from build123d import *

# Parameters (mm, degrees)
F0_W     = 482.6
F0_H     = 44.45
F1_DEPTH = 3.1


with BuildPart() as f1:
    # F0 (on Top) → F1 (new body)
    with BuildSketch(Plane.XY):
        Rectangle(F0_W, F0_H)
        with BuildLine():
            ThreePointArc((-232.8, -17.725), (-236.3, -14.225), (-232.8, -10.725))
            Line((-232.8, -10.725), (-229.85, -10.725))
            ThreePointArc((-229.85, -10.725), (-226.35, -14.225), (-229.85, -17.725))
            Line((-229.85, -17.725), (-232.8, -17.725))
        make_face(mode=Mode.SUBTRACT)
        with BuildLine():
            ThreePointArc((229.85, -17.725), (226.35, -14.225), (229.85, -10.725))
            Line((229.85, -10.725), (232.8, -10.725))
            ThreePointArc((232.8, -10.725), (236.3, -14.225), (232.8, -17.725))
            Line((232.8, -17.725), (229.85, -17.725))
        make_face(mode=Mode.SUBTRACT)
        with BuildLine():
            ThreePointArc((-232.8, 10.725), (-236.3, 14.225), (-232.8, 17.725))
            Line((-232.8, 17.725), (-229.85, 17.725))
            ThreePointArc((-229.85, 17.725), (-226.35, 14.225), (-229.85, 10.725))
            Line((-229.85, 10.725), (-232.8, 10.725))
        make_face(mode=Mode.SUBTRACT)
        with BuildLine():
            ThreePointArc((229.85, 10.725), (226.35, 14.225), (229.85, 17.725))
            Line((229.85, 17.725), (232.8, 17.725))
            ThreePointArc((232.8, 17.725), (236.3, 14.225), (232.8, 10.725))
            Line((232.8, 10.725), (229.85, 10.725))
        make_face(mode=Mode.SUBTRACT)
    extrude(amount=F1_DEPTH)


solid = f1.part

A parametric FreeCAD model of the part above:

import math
import FreeCAD as App
import Part
import Sketcher

V = App.Vector
Q = App.Units.Quantity


def add_polygon(sketch, points):
    """Adds a closed chain of lines whose ends are joined by coincident constraints."""
    first, n = sketch.GeometryCount, len(points)
    for a, b in zip(points, points[1:] + points[:1]):
        sketch.addGeometry(Part.LineSegment(App.Vector(*a, 0), App.Vector(*b, 0)), False)
    for i in range(n):
        sketch.addConstraint(Sketcher.Constraint("Coincident", first + i, 2, first + (i + 1) % n, 1))

doc = App.newDocument("Part")
params = doc.addObject("Spreadsheet::Sheet", "Params")
for row, (alias, value) in enumerate([
    ("sketch1_radius", "3.5 mm"),
    ("sketch1_width", "482.6 mm"),
    ("sketch1_width2", "2.95 mm"),
    ("sketch1_height", "44.45 mm"),
    ("pad1_length", "3.1 mm"),
], start=1):
    params.set(f"A{row}", alias)
    params.set(f"B{row}", "=" + value)
    params.setAlias(f"B{row}", alias)

body = doc.addObject("PartDesign::Body", "Body")

sketch1 = body.newObject("Sketcher::SketchObject", "Sketch")
sketch1.AttachmentSupport = (doc.getObject("XY_Plane"), [""])
sketch1.MapMode = "FlatFace"
add_polygon(sketch1, [(-241.3, 22.225), (-241.3, -22.225), (241.3, -22.225), (241.3, 22.225)])
sketch1.addGeometry(Part.LineSegment(V(-229.85, -17.725, 0), V(-232.8, -17.725, 0)), False)
sketch1.addGeometry(Part.ArcOfCircle(Part.Circle(V(-232.8, -14.225, 0), V(0, 0, 1), 3.5), math.radians(90), math.radians(270)), False)
sketch1.addGeometry(Part.LineSegment(V(-232.8, -10.725, 0), V(-229.85, -10.725, 0)), False)
sketch1.addGeometry(Part.ArcOfCircle(Part.Circle(V(-229.85, -14.225, 0), V(0, 0, 1), 3.5), math.radians(-90), math.radians(90)), False)
sketch1.addGeometry(Part.LineSegment(V(232.8, -17.725, 0), V(229.85, -17.725, 0)), False)
sketch1.addGeometry(Part.ArcOfCircle(Part.Circle(V(229.85, -14.225, 0), V(0, 0, 1), 3.5), math.radians(90), math.radians(270)), False)
sketch1.addGeometry(Part.LineSegment(V(229.85, -10.725, 0), V(232.8, -10.725, 0)), False)
sketch1.addGeometry(Part.ArcOfCircle(Part.Circle(V(232.8, -14.225, 0), V(0, 0, 1), 3.5), math.radians(-90), math.radians(90)), False)
sketch1.addGeometry(Part.LineSegment(V(-229.85, 10.725, 0), V(-232.8, 10.725, 0)), False)
sketch1.addGeometry(Part.ArcOfCircle(Part.Circle(V(-232.8, 14.225, 0), V(0, 0, 1), 3.5), math.radians(90), math.radians(270)), False)
sketch1.addGeometry(Part.LineSegment(V(-232.8, 17.725, 0), V(-229.85, 17.725, 0)), False)
sketch1.addGeometry(Part.ArcOfCircle(Part.Circle(V(-229.85, 14.225, 0), V(0, 0, 1), 3.5), math.radians(-90), math.radians(90)), False)
sketch1.addGeometry(Part.LineSegment(V(232.8, 10.725, 0), V(229.85, 10.725, 0)), False)
sketch1.addGeometry(Part.ArcOfCircle(Part.Circle(V(229.85, 14.225, 0), V(0, 0, 1), 3.5), math.radians(90), math.radians(270)), False)
sketch1.addGeometry(Part.LineSegment(V(229.85, 17.725, 0), V(232.8, 17.725, 0)), False)
sketch1.addGeometry(Part.ArcOfCircle(Part.Circle(V(232.8, 14.225, 0), V(0, 0, 1), 3.5), math.radians(-90), math.radians(90)), False)
sketch1.addConstraint(Sketcher.Constraint("Tangent", 4, 2, 5, 2))
sketch1.addConstraint(Sketcher.Constraint("Tangent", 5, 1, 6, 1))
sketch1.addConstraint(Sketcher.Constraint("Tangent", 6, 2, 7, 2))
sketch1.addConstraint(Sketcher.Constraint("Tangent", 7, 1, 4, 1))
sketch1.addConstraint(Sketcher.Constraint("Tangent", 8, 2, 9, 2))
sketch1.addConstraint(Sketcher.Constraint("Tangent", 9, 1, 10, 1))
sketch1.addConstraint(Sketcher.Constraint("Tangent", 10, 2, 11, 2))
sketch1.addConstraint(Sketcher.Constraint("Tangent", 11, 1, 8, 1))
sketch1.addConstraint(Sketcher.Constraint("Tangent", 12, 2, 13, 2))
sketch1.addConstraint(Sketcher.Constraint("Tangent", 13, 1, 14, 1))
sketch1.addConstraint(Sketcher.Constraint("Tangent", 14, 2, 15, 2))
sketch1.addConstraint(Sketcher.Constraint("Tangent", 15, 1, 12, 1))
sketch1.addConstraint(Sketcher.Constraint("Tangent", 16, 2, 17, 2))
sketch1.addConstraint(Sketcher.Constraint("Tangent", 17, 1, 18, 1))
sketch1.addConstraint(Sketcher.Constraint("Tangent", 18, 2, 19, 2))
sketch1.addConstraint(Sketcher.Constraint("Tangent", 19, 1, 16, 1))
sketch1.addConstraint(Sketcher.Constraint("Vertical", 0))
sketch1.addConstraint(Sketcher.Constraint("Horizontal", 1))
sketch1.addConstraint(Sketcher.Constraint("Vertical", 2))
sketch1.addConstraint(Sketcher.Constraint("Horizontal", 3))
sketch1.addConstraint(Sketcher.Constraint("Horizontal", 4))
sketch1.addConstraint(Sketcher.Constraint("Horizontal", 6))
sketch1.addConstraint(Sketcher.Constraint("Horizontal", 8))
sketch1.addConstraint(Sketcher.Constraint("Horizontal", 10))
sketch1.addConstraint(Sketcher.Constraint("Horizontal", 12))
sketch1.addConstraint(Sketcher.Constraint("Horizontal", 14))
sketch1.addConstraint(Sketcher.Constraint("Horizontal", 16))
sketch1.addConstraint(Sketcher.Constraint("Horizontal", 18))
sketch1.addConstraint(Sketcher.Constraint("Equal", 7, 9))
sketch1.addConstraint(Sketcher.Constraint("Equal", 11, 13))
sketch1.addConstraint(Sketcher.Constraint("Equal", 15, 17))
sketch1.addConstraint(Sketcher.Constraint("Symmetric", 11, 3, 13, 3, -1, 1))
sketch1.addConstraint(Sketcher.Constraint("Symmetric", 7, 3, 17, 3, -1, 1))
sketch1.addConstraint(Sketcher.Constraint("Symmetric", 0, 2, 2, 2, -1, 1))
sketch1.addConstraint(Sketcher.Constraint("Symmetric", 7, 3, 9, 3, -2))
sketch1.addConstraint(Sketcher.Constraint("Vertical", 5, 3, 13, 3))
sketch1.addConstraint(Sketcher.Constraint("Vertical", 7, 3, 15, 3))
sketch1.addConstraint(Sketcher.Constraint("Vertical", 11, 3, 19, 3))
sketch1.addConstraint(Sketcher.Constraint("Radius", 5, Q("3.5 mm")))
sketch1.addConstraint(Sketcher.Constraint("DistanceX", 1, 1, 1, 2, Q("482.6 mm")))
sketch1.addConstraint(Sketcher.Constraint("DistanceY", 0, 2, 5, 3, Q("8 mm")))
sketch1.addConstraint(Sketcher.Constraint("DistanceX", 4, 2, 4, 1, Q("2.95 mm")))
sketch1.addConstraint(Sketcher.Constraint("DistanceY", 0, 2, 0, 1, Q("44.45 mm")))
sketch1.addConstraint(Sketcher.Constraint("DistanceX", 5, 3, -1, 1, Q("232.8 mm")))
sketch1.setExpression("Constraints[42]", "Params.sketch1_radius")
sketch1.setExpression("Constraints[43]", "Params.sketch1_width")
sketch1.setExpression("Constraints[45]", "Params.sketch1_width2")
sketch1.setExpression("Constraints[46]", "Params.sketch1_height")
pad1 = body.newObject("PartDesign::Pad", "Pad")
pad1.Profile = sketch1
pad1.setExpression("Length", "Params.pad1_length")

doc.recompute()
